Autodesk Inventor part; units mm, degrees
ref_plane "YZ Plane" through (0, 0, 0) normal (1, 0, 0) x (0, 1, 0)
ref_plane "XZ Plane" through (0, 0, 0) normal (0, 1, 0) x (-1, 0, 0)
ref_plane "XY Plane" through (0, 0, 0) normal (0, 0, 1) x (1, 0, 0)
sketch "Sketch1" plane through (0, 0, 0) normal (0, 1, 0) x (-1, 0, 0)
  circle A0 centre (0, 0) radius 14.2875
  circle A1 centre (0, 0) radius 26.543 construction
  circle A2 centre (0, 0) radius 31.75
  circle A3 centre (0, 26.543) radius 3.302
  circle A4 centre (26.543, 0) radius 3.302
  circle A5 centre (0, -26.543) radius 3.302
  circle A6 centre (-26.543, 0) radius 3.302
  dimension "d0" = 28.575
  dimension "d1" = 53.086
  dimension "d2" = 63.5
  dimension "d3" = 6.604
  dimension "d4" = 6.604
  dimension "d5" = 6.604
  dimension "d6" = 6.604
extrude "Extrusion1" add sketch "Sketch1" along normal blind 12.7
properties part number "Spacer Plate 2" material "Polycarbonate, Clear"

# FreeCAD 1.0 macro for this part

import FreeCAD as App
import Part
import Sketcher

V = App.Vector
Q = App.Units.Quantity

doc = App.newDocument("Part")
params = doc.addObject("Spreadsheet::Sheet", "Params")
for row, (alias, value) in enumerate([
    ("sketch1_diameter", "2.5 in"),
    ("sketch1_diameter2", "0.26 in"),
    ("sketch1_diameter3", "1.125 in"),
    ("pad1_length", "0.5 in"),
], start=1):
    params.set(f"A{row}", alias)
    params.set(f"B{row}", "=" + value)
    params.setAlias(f"B{row}", alias)

body = doc.addObject("PartDesign::Body", "Body")

# Sketch on XZ plane
sketch1 = doc.addObject("Sketcher::SketchObject", "Sketch")
body.addObject(sketch1)
sketch1.AttachmentSupport = (doc.XZ_Plane, [""])
sketch1.MapMode = "FlatFace"
sketch1.addGeometry(Part.Circle(V(0, 0, 0), V(0, 0, 1), 31.8), False)
sketch1.addGeometry(Part.Circle(V(0, -26.5, 0), V(0, 0, 1), 3.3), False)
sketch1.addGeometry(Part.Circle(V(26.5, 0, 0), V(0, 0, 1), 3.3), False)
sketch1.addGeometry(Part.Circle(V(0, 0, 0), V(0, 0, 1), 14.3), False)
sketch1.addGeometry(Part.Circle(V(-26.5, 0, 0), V(0, 0, 1), 3.3), False)
sketch1.addGeometry(Part.Circle(V(0, 26.5, 0), V(0, 0, 1), 3.3), False)
sketch1.addConstraint(Sketcher.Constraint("Coincident", 0, 3, -1, 1))
sketch1.addConstraint(Sketcher.Constraint("Coincident", 3, 3, -1, 1))
sketch1.addConstraint(Sketcher.Constraint("Equal", 1, 2))
sketch1.addConstraint(Sketcher.Constraint("Equal", 2, 4))
sketch1.addConstraint(Sketcher.Constraint("Equal", 4, 5))
sketch1.addConstraint(Sketcher.Constraint("Symmetric", 2, 3, 4, 3, -1, 1))
sketch1.addConstraint(Sketcher.Constraint("Symmetric", 1, 3, 5, 3, -1, 1))
sketch1.addConstraint(Sketcher.Constraint("PointOnObject", 1, 3, -2))
sketch1.addConstraint(Sketcher.Constraint("PointOnObject", 2, 3, -1))
sketch1.addConstraint(Sketcher.Constraint("Diameter", 0, Q("2.5 in")))
sketch1.addConstraint(Sketcher.Constraint("Diameter", 1, Q("0.26 in")))
sketch1.addConstraint(Sketcher.Constraint("Diameter", 3, Q("1.125 in")))
sketch1.addConstraint(Sketcher.Constraint("DistanceX", 4, 3, 2, 3, Q("2.09 in")))
sketch1.addConstraint(Sketcher.Constraint("DistanceY", 1, 3, 5, 3, Q("2.09 in")))
sketch1.setExpression("Constraints[9]", "Params.sketch1_diameter")
sketch1.setExpression("Constraints[10]", "Params.sketch1_diameter2")
sketch1.setExpression("Constraints[11]", "Params.sketch1_diameter3")
pad1 = doc.addObject("PartDesign::Pad", "Pad")
body.addObject(pad1)
pad1.Profile = sketch1
pad1.setExpression("Length", "Params.pad1_length")
pad1.Reversed = True

doc.recompute()
